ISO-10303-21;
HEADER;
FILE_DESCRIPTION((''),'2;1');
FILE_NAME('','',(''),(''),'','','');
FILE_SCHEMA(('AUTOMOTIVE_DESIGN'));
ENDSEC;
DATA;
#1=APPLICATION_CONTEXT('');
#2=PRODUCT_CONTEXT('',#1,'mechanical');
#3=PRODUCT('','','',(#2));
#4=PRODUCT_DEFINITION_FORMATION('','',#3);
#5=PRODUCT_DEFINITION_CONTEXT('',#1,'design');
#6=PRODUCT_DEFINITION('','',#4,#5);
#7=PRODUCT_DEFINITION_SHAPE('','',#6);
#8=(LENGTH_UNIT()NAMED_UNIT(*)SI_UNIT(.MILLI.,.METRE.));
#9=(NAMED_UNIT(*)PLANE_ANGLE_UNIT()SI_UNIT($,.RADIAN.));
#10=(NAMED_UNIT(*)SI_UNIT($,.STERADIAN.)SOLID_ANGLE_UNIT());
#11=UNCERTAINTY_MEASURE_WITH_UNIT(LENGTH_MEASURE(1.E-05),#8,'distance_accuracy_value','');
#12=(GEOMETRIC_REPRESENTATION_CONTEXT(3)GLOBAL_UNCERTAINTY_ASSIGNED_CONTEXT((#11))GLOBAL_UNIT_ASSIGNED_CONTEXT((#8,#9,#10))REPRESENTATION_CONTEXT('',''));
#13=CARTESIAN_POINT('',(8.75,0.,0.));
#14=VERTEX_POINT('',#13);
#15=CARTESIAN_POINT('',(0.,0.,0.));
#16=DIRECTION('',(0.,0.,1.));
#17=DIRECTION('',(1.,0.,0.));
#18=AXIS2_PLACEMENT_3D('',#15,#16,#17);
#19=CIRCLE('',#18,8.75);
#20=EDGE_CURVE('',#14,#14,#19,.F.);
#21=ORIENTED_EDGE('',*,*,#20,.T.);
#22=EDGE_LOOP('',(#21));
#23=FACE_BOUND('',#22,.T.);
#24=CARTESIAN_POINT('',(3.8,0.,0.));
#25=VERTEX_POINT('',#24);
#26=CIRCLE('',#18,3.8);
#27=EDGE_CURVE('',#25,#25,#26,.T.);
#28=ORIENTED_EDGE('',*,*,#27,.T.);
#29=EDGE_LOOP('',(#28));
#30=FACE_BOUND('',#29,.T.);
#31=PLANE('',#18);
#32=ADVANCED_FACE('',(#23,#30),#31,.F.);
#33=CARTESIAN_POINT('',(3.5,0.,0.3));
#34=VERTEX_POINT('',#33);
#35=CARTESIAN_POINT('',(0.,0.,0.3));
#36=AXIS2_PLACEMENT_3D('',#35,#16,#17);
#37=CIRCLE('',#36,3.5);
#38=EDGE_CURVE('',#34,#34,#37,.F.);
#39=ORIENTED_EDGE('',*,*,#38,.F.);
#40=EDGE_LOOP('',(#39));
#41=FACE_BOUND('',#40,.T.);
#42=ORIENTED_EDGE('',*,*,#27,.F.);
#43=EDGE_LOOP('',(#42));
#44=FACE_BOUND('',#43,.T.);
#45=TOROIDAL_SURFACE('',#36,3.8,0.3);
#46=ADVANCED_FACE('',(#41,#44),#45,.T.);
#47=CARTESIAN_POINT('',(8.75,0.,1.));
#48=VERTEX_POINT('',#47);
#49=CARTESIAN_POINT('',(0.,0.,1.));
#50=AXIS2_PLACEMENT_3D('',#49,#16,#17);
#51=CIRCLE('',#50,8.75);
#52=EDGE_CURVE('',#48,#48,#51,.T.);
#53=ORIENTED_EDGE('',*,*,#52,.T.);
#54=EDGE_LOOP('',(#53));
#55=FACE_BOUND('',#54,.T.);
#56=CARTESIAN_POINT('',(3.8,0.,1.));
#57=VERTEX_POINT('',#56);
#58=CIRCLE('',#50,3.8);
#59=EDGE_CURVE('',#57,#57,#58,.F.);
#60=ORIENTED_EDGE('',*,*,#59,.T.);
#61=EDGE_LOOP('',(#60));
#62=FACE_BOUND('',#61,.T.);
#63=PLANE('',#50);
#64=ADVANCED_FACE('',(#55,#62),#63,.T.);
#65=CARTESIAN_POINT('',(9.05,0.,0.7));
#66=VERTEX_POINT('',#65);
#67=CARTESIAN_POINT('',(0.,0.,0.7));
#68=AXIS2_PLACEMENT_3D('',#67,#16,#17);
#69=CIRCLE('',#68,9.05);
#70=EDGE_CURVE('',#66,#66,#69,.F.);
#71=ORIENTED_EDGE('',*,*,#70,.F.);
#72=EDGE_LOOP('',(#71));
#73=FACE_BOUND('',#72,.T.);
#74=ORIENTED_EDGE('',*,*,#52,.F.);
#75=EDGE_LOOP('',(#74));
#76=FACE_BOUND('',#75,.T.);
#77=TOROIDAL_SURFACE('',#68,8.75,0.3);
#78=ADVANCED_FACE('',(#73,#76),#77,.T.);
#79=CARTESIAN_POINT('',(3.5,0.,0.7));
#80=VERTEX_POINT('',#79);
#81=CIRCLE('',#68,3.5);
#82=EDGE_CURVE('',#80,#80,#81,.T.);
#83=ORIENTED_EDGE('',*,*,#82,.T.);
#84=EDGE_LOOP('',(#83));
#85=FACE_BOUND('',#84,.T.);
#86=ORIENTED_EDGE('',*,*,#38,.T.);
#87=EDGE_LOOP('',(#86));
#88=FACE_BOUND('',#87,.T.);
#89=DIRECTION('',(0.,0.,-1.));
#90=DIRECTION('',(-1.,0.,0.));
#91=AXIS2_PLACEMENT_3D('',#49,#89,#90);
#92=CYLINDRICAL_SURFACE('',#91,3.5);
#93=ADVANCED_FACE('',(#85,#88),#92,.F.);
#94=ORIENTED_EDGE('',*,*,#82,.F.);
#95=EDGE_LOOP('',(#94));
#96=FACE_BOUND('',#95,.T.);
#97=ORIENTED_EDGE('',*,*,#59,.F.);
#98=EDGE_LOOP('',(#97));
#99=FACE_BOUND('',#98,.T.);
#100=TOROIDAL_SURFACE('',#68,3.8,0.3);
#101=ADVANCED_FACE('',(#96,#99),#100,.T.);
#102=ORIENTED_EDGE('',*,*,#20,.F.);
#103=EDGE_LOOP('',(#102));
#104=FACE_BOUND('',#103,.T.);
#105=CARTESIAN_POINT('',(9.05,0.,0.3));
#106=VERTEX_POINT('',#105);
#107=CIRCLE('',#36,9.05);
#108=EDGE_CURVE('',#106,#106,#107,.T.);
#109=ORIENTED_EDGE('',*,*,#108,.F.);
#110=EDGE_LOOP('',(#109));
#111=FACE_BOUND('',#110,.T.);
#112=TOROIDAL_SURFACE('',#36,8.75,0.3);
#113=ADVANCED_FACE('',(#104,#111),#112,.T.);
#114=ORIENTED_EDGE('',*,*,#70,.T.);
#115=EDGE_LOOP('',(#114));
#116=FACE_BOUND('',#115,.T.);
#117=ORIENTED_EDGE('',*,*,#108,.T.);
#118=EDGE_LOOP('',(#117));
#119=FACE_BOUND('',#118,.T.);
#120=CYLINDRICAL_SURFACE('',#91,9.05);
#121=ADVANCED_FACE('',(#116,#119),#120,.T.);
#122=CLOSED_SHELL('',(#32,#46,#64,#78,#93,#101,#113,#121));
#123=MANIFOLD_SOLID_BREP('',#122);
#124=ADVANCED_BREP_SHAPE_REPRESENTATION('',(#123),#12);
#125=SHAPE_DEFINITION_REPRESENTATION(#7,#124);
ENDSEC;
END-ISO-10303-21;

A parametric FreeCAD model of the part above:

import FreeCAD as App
import Part
import Sketcher
from FreeCAD import Vector


def edges_at(feature, points):
    """Names of the edges that pass closest to the given points."""
    edges = feature.Shape.Edges
    near = lambda p: min(range(len(edges)), key=lambda i: edges[i].distToShape(Part.Vertex(*p))[0])
    return sorted({f"Edge{near(p) + 1}" for p in points})

doc = App.newDocument("Part")
body = doc.addObject("PartDesign::Body", "Body")

# Sketch on XY plane
sketch1 = body.newObject("Sketcher::SketchObject", "Sketch")
sketch1.AttachmentSupport = (doc.getObject("XY_Plane"), [""])
sketch1.MapMode = "FlatFace"
sketch1.addGeometry([
    Part.Circle(Vector(0, 0, 0), Vector(0, 0, 1), 9.1),
    Part.Circle(Vector(0, 0, 0), Vector(0, 0, 1), 3.5),
], False)
sketch1.addConstraint([
    Sketcher.Constraint("Coincident", 0, 3, -1, 1),
    Sketcher.Constraint("Coincident", 1, 3, -1, 1),
    Sketcher.Constraint("Diameter", 1, 7.0),
    Sketcher.Constraint("Diameter", 0, 18.1),
])
pad1 = body.newObject("PartDesign::Pad", "Pad")
pad1.Profile = sketch1
pad1.Length = 1
doc.recompute()

fillet = body.newObject("PartDesign::Fillet", "Fillet")
fillet.Base = (pad1, edges_at(pad1, [
    (-9.05, 0, 0),
    (-9.05, 0, 1),
    (-3.5, 0, 0),
    (-3.5, 0, 1),
]))
fillet.Radius = 0.3

doc.recompute()
